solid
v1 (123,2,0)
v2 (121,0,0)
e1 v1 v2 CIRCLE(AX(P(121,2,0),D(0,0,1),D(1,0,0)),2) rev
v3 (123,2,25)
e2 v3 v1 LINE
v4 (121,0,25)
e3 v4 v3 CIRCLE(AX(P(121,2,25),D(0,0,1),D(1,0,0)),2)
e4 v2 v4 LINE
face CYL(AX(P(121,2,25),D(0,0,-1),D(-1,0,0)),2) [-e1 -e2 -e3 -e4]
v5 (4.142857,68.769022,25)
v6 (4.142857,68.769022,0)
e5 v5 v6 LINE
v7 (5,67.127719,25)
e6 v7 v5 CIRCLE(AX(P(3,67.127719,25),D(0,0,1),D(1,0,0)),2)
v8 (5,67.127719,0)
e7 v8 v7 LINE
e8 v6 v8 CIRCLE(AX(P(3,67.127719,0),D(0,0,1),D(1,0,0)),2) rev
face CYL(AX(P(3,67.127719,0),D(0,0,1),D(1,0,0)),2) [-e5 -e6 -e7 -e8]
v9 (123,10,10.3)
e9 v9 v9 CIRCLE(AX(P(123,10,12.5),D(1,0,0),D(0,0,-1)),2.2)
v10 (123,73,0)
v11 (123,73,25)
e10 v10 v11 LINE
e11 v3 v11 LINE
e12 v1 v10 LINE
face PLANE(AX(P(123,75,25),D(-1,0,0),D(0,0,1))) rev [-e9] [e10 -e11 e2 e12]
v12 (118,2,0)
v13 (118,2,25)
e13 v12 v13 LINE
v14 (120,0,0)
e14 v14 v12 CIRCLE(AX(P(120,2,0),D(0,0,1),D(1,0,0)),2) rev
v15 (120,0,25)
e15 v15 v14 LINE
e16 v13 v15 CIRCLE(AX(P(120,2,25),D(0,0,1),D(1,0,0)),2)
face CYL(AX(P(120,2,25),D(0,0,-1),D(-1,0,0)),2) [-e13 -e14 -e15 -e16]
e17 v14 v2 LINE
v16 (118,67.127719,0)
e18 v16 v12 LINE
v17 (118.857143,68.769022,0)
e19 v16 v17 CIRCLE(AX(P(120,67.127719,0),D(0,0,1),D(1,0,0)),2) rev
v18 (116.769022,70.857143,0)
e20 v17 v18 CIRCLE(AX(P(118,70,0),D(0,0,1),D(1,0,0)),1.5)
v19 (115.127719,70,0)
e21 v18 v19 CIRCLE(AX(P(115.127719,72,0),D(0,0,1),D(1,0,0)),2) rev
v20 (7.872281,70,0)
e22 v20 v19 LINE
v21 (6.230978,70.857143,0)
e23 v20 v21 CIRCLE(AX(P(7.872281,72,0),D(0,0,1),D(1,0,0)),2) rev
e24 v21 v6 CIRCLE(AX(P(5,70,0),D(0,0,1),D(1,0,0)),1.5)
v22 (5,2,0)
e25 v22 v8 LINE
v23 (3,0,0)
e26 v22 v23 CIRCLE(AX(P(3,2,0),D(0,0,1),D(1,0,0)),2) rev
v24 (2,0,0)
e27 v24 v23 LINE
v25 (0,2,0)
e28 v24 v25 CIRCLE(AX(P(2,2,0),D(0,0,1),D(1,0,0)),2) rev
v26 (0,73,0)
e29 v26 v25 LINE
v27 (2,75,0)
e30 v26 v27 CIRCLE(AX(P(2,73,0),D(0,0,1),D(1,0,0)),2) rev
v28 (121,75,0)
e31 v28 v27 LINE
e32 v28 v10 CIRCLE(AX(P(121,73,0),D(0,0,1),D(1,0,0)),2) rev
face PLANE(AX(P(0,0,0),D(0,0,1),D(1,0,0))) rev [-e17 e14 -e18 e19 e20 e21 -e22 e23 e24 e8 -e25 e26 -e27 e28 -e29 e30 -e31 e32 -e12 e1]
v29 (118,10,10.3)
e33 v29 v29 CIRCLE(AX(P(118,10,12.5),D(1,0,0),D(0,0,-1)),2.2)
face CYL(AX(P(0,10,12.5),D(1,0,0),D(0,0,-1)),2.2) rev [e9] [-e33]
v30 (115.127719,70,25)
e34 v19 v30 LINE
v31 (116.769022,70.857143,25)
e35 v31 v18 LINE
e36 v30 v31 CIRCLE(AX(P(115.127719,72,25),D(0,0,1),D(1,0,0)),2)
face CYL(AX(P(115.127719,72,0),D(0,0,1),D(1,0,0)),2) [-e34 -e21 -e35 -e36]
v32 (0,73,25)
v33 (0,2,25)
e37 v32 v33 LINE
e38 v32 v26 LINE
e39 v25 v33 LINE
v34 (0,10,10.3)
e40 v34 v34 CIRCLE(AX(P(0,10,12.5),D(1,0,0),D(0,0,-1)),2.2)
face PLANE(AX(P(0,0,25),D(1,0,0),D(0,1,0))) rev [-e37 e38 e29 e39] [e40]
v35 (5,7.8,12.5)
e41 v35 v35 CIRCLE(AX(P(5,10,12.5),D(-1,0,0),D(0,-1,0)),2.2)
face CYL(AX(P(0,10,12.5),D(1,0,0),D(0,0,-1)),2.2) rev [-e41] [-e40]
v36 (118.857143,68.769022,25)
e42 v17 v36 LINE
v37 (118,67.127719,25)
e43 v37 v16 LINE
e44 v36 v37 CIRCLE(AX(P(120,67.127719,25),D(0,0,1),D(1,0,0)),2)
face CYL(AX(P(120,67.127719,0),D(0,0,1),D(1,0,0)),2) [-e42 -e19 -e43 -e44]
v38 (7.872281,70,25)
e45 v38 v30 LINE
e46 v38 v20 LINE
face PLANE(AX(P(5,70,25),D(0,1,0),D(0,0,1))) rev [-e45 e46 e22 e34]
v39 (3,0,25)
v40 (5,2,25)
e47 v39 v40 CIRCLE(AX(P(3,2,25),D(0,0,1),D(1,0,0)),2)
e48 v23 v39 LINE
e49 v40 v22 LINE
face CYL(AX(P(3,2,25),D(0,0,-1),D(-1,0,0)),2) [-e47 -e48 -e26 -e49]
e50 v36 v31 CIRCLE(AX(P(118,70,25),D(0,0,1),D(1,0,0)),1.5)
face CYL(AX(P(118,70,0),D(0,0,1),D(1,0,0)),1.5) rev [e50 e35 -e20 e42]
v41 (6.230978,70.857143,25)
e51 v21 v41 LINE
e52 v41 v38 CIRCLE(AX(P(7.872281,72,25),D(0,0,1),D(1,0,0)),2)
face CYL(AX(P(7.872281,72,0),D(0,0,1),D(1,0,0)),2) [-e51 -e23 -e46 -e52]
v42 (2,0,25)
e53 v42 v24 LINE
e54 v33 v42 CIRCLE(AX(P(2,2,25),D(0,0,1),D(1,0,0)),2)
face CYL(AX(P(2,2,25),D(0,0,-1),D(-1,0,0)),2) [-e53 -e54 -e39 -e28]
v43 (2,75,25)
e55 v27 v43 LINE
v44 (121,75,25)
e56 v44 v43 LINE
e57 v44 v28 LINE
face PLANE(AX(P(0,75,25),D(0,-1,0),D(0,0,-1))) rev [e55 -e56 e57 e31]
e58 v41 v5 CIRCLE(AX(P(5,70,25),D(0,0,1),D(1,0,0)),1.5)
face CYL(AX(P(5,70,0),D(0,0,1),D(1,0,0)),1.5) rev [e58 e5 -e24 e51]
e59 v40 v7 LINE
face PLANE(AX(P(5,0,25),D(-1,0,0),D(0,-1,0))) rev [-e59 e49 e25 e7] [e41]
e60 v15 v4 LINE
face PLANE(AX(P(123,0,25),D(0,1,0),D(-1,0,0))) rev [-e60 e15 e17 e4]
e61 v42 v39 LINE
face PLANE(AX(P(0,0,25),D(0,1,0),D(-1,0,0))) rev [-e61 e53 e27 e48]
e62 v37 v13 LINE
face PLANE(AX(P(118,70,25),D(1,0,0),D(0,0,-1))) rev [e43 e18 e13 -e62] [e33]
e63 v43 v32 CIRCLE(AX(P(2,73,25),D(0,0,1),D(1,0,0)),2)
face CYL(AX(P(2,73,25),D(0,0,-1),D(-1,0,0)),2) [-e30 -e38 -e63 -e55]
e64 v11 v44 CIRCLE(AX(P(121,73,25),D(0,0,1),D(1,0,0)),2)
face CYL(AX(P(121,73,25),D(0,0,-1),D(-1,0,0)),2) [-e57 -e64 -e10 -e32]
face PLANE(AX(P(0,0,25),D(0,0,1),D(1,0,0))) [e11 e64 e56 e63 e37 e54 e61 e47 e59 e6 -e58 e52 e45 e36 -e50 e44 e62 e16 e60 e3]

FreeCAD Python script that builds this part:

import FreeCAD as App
import Part
import Sketcher
Q = App.Units.Quantity


def edges_at(feature, points):
    """Names of the edges that pass closest to the given points."""
    edges = feature.Shape.Edges
    near = lambda p: min(range(len(edges)), key=lambda i: edges[i].distToShape(Part.Vertex(*p))[0])
    return sorted({f"Edge{near(p) + 1}" for p in points})

doc = App.newDocument("Part")
params = doc.addObject("Spreadsheet::Sheet", "Params")
for row, (alias, value) in enumerate([
    ("sketch1_width", "5 mm"),
    ("sketch1_width2", "113 mm"),
    ("sketch1_height", "75 mm"),
    ("sketch1_height2", "70 mm"),
    ("pad1_length", "25 mm"),
    ("sketch2_diameter", "4.4 mm"),
    ("sketch3_diameter", "3 mm"),
    ("fillet_radius", "2 mm"),
], start=1):
    params.set(f"A{row}", alias)
    params.set(f"B{row}", "=" + value)
    params.setAlias(f"B{row}", alias)

body = doc.addObject("PartDesign::Body", "Body")

# Sketch on XY plane
sketch1 = body.newObject("Sketcher::SketchObject", "Sketch")
sketch1.AttachmentSupport = (doc.getObject("XY_Plane"), [""])
sketch1.MapMode = "FlatFace"
sketch1.addGeometry([
    Part.LineSegment(App.Vector(0, 75, 0), App.Vector(0, 0, 0)),  # 0
    Part.LineSegment(App.Vector(0, 0, 0), App.Vector(5, 0, 0)),  # 1
    Part.LineSegment(App.Vector(5, 0, 0), App.Vector(5, 70, 0)),  # 2
    Part.LineSegment(App.Vector(5, 70, 0), App.Vector(118, 70, 0)),  # 3
    Part.LineSegment(App.Vector(118, 70, 0), App.Vector(118, 0, 0)),  # 4
    Part.LineSegment(App.Vector(118, 0, 0), App.Vector(123, 0, 0)),  # 5
    Part.LineSegment(App.Vector(123, 0, 0), App.Vector(123, 75, 0)),  # 6
    Part.LineSegment(App.Vector(123, 75, 0), App.Vector(0, 75, 0)),  # 7
], False)
sketch1.addConstraint([
    Sketcher.Constraint("Coincident", 0, 2, 1, 1),
    Sketcher.Constraint("Coincident", 1, 2, 2, 1),
    Sketcher.Constraint("Coincident", 2, 2, 3, 1),
    Sketcher.Constraint("Coincident", 3, 2, 4, 1),
    Sketcher.Constraint("Coincident", 4, 2, 5, 1),
    Sketcher.Constraint("Coincident", 5, 2, 6, 1),
    Sketcher.Constraint("Coincident", 6, 2, 7, 1),
    Sketcher.Constraint("Coincident", 7, 2, 0, 1),
    Sketcher.Constraint("Vertical", 0),
    Sketcher.Constraint("Horizontal", 1),
    Sketcher.Constraint("Vertical", 2),
    Sketcher.Constraint("Horizontal", 3),
    Sketcher.Constraint("Vertical", 4),
    Sketcher.Constraint("Horizontal", 5),
    Sketcher.Constraint("Vertical", 6),
    Sketcher.Constraint("Horizontal", 7),
    Sketcher.Constraint("Coincident", 0, 2, -1, 1),
    Sketcher.Constraint("PointOnObject", 4, 2, -1),
    Sketcher.Constraint("Equal", 1, 5),
    Sketcher.Constraint("DistanceX", 1, 1, 1, 2, Q("5 mm")),
    Sketcher.Constraint("DistanceX", 3, 1, 3, 2, Q("113 mm")),
    Sketcher.Constraint("DistanceY", 0, 2, 0, 1, Q("75 mm")),
    Sketcher.Constraint("DistanceY", 2, 1, 2, 2, Q("70 mm")),
])
sketch1.setExpression("Constraints[19]", "Params.sketch1_width")
sketch1.setExpression("Constraints[20]", "Params.sketch1_width2")
sketch1.setExpression("Constraints[21]", "Params.sketch1_height")
sketch1.setExpression("Constraints[22]", "Params.sketch1_height2")
pad1 = body.newObject("PartDesign::Pad", "Pad")
pad1.Profile = sketch1
pad1.setExpression("Length", "Params.pad1_length")

# Sketch on YZ plane
sketch2 = body.newObject("Sketcher::SketchObject", "Sketch001")
sketch2.AttachmentSupport = (doc.getObject("YZ_Plane"), [""])
sketch2.MapMode = "FlatFace"
sketch2.AttachmentOffset = App.Placement(App.Vector(0, 0, 123), App.Rotation())
sketch2.addGeometry(Part.Circle(App.Vector(10, 12.5, 0), App.Vector(0, 0, 1), 2.2), False)
sketch2.addConstraint([
    Sketcher.Constraint("Diameter", 0, Q("4.4 mm")),
    Sketcher.Constraint("DistanceX", -1, 1, 0, 3, Q("10 mm")),
    Sketcher.Constraint("DistanceY", -1, 1, 0, 3, Q("12.5 mm")),
])
sketch2.setExpression("Constraints[0]", "Params.sketch2_diameter")
pocket1 = body.newObject("PartDesign::Pocket", "Pocket")
pocket1.Profile = sketch2
pocket1.Type = "ThroughAll"

# Sketch on XY plane
sketch3 = body.newObject("Sketcher::SketchObject", "Sketch002")
sketch3.AttachmentSupport = (doc.getObject("XY_Plane"), [""])
sketch3.MapMode = "FlatFace"
sketch3.AttachmentOffset = App.Placement(App.Vector(0, 0, 25), App.Rotation())
sketch3.addGeometry([
    Part.Circle(App.Vector(5, 70, 0), App.Vector(0, 0, 1), 1.5),
    Part.Circle(App.Vector(118, 70, 0), App.Vector(0, 0, 1), 1.5),
], False)
sketch3.addConstraint([
    Sketcher.Constraint("Equal", 0, 1),
    Sketcher.Constraint("Horizontal", 0, 3, 1, 3),
    Sketcher.Constraint("Diameter", 0, Q("3 mm")),
    Sketcher.Constraint("DistanceX", -1, 1, 0, 3, Q("5 mm")),
    Sketcher.Constraint("DistanceY", -1, 1, 0, 3, Q("70 mm")),
    Sketcher.Constraint("DistanceX", -1, 1, 1, 3, Q("118 mm")),
])
sketch3.setExpression("Constraints[2]", "Params.sketch3_diameter")
pocket2 = body.newObject("PartDesign::Pocket", "Pocket001")
pocket2.Profile = sketch3
pocket2.Type = "ThroughAll"
doc.recompute()

fillet = body.newObject("PartDesign::Fillet", "Fillet")
fillet.Base = (pocket2, edges_at(pocket2, [
    (0, 0, 12.5),
    (0, 75, 12.5),
    (123, 75, 12.5),
    (123, 0, 12.5),
    (118, 0, 12.5),
    (5, 0, 12.5),
    (5, 68.5, 12.5),
    (6.5, 70, 12.5),
    (116.5, 70, 12.5),
    (118, 68.5, 12.5),
]))
fillet.setExpression("Radius", "Params.fillet_radius")

doc.recompute()
